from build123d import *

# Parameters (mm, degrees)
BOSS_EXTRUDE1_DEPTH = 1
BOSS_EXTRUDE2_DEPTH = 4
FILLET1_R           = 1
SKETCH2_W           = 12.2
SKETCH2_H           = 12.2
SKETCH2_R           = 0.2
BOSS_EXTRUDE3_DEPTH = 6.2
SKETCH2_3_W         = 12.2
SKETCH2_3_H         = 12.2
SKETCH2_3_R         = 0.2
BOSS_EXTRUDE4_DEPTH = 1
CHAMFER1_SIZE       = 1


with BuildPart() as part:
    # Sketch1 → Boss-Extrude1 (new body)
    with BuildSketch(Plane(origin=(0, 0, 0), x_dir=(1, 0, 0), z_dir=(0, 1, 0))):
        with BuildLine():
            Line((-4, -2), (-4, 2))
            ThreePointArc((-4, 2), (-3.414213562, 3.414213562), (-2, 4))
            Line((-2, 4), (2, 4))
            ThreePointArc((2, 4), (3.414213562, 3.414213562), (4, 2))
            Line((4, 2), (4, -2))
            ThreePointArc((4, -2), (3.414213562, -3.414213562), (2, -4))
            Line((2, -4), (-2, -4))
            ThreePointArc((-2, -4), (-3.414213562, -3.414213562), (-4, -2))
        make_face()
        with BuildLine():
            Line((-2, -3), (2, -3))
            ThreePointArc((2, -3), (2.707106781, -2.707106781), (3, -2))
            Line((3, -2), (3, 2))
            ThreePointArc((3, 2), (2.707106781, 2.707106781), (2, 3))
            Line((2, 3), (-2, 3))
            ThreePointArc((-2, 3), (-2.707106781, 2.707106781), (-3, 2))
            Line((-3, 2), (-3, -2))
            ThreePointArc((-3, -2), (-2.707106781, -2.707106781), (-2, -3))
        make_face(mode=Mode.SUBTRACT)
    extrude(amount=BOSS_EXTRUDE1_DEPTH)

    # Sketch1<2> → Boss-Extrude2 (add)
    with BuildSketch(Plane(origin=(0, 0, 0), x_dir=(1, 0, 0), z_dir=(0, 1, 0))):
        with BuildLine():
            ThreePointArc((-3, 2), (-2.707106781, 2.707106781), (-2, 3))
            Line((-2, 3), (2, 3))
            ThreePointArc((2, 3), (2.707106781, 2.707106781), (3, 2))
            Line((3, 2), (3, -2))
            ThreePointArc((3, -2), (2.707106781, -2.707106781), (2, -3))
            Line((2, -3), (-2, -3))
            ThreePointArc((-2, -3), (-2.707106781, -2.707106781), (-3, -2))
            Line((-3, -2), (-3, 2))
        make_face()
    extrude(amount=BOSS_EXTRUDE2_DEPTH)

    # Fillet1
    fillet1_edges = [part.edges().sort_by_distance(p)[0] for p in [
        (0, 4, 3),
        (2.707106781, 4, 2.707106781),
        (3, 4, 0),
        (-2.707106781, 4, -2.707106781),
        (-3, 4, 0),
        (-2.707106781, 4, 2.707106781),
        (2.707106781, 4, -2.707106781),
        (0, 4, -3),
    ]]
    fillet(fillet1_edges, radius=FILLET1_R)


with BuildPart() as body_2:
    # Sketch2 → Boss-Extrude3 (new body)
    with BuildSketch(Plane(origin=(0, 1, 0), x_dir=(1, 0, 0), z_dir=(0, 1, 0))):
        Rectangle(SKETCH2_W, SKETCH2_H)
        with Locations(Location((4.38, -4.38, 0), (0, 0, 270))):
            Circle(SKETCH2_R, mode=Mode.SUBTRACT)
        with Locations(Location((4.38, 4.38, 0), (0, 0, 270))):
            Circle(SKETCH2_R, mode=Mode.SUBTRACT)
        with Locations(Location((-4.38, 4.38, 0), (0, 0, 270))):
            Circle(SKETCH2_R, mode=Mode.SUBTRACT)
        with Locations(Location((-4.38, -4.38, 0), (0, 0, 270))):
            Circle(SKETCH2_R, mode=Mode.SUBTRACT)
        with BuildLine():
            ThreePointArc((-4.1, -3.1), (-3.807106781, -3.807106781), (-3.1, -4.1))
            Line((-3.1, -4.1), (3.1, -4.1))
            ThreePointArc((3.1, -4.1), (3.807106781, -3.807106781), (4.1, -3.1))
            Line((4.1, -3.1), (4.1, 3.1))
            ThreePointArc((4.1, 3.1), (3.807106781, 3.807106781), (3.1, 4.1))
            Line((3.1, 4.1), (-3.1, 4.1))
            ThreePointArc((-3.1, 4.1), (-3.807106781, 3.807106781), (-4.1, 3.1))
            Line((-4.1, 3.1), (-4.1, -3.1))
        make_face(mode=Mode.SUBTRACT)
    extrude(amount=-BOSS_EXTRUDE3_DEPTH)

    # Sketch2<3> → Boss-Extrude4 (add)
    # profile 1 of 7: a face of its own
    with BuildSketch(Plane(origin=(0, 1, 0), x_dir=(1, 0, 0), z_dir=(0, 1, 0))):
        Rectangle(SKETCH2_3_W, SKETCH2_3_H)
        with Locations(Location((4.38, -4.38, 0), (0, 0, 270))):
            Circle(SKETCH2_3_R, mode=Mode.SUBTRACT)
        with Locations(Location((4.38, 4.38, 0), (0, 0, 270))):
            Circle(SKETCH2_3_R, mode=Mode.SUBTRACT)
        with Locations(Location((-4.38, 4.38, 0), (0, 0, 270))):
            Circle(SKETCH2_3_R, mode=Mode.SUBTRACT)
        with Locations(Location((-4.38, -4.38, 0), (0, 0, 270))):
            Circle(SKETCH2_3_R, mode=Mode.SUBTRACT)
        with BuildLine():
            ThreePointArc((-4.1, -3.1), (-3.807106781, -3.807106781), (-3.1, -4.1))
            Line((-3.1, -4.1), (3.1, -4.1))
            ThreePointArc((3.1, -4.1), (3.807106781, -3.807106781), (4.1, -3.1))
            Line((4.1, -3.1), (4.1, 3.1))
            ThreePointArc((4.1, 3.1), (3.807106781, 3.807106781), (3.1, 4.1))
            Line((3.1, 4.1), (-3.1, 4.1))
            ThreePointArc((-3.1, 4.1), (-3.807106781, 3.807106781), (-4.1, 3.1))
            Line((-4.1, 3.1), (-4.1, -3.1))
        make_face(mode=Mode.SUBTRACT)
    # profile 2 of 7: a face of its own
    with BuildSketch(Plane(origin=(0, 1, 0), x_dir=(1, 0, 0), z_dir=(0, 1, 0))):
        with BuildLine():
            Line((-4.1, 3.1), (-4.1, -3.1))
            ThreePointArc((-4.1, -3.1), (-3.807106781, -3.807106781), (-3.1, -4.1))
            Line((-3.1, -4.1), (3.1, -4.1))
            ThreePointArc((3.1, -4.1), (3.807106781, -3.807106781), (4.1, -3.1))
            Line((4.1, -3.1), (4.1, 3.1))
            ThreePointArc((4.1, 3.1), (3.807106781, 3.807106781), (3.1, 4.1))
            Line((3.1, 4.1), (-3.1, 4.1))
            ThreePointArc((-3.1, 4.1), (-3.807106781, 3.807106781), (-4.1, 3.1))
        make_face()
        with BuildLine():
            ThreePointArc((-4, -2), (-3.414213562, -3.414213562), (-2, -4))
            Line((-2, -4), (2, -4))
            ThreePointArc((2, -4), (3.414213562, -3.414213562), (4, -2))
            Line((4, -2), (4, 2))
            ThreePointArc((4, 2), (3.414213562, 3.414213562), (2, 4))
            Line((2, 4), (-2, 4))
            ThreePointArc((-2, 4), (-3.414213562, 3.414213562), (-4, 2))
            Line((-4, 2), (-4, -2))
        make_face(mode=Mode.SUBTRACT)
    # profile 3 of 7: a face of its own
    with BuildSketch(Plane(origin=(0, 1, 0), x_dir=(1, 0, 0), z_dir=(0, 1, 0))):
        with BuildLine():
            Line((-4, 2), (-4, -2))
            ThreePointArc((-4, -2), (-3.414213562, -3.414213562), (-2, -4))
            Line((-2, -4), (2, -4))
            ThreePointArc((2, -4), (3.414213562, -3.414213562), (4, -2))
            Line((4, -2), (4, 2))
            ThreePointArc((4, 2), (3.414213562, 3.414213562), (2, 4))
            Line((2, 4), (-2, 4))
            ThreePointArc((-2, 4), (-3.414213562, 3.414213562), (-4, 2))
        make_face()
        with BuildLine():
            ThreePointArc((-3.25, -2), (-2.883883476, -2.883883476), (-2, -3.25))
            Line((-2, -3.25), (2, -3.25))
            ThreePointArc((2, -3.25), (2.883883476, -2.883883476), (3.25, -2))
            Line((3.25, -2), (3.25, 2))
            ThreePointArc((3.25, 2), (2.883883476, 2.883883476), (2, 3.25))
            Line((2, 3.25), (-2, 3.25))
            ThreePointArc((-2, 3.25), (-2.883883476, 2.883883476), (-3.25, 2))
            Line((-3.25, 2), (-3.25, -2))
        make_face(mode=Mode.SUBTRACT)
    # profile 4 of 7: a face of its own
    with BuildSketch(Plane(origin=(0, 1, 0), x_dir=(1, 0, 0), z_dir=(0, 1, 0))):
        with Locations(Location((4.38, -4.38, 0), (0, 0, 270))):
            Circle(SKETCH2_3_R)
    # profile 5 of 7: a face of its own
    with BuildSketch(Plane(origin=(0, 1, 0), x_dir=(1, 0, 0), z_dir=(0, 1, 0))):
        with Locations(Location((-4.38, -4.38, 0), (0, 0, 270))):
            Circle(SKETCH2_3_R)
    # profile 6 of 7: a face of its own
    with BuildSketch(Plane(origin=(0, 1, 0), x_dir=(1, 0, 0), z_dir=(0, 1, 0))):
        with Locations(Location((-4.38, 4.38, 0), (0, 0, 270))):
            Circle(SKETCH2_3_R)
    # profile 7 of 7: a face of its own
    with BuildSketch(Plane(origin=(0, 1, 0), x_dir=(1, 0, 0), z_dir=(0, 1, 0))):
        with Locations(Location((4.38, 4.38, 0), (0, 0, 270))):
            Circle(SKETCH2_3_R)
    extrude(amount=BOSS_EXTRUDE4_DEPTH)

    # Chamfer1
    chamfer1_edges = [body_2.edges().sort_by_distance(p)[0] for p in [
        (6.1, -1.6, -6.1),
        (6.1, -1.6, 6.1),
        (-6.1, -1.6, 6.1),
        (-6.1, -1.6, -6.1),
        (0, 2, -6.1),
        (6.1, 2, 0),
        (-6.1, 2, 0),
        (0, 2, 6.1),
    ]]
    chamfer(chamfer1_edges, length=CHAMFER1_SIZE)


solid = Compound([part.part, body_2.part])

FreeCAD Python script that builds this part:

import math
import FreeCAD as App
import Part
import Sketcher
from FreeCAD import Vector


def edges_at(feature, points):
    """Names of the edges that pass closest to the given points."""
    edges = feature.Shape.Edges
    near = lambda p: min(range(len(edges)), key=lambda i: edges[i].distToShape(Part.Vertex(*p))[0])
    return sorted({f"Edge{near(p) + 1}" for p in points})


def add_polygon(sketch, points):
    """Adds a closed chain of lines whose ends are joined by coincident constraints."""
    first, n = sketch.GeometryCount, len(points)
    for a, b in zip(points, points[1:] + points[:1]):
        sketch.addGeometry(Part.LineSegment(App.Vector(*a, 0), App.Vector(*b, 0)), False)
    for i in range(n):
        sketch.addConstraint(Sketcher.Constraint("Coincident", first + i, 2, first + (i + 1) % n, 1))

doc = App.newDocument("Part")
params = doc.addObject("Spreadsheet::Sheet", "Params")
for row, (alias, value) in enumerate([
    ("sketch1_radius", "2 mm"),
    ("sketch1_radius2", "1 mm"),
    ("sketch1_width", "4 mm"),
    ("pad1_length", "1 mm"),
    ("sketch2_radius", "1 mm"),
    ("sketch2_width", "4 mm"),
    ("pad2_length", "4 mm"),
    ("fillet_radius", "1 mm"),
    ("sketch3_radius", "1 mm"),
    ("sketch3_diameter", "0.4 mm"),
    ("sketch3_width", "12.2 mm"),
    ("sketch3_width2", "6.2 mm"),
    ("pad3_length", "6.2 mm"),
    ("sketch4_width", "4 mm"),
    ("sketch4_radius", "1.25 mm"),
    ("sketch4_width2", "12.2 mm"),
    ("pad4_length", "1 mm"),
    ("chamfer_size", "1 mm"),
], start=1):
    params.set(f"A{row}", alias)
    params.set(f"B{row}", "=" + value)
    params.setAlias(f"B{row}", alias)

body = doc.addObject("PartDesign::Body", "Body")

sketch1 = doc.addObject("Sketcher::SketchObject", "Sketch")
body.addObject(sketch1)
sketch1.AttachmentSupport = (doc.XZ_Plane, [""])
sketch1.MapMode = "FlatFace"
sketch1.addGeometry([
    Part.LineSegment(Vector(-4, -2, 0), Vector(-4, 2, 0)),
    Part.ArcOfCircle(Part.Circle(Vector(-2, 2, 0), Vector(0, 0, 1), 2), math.radians(90), math.radians(180)),
    Part.LineSegment(Vector(-2, 4, 0), Vector(2, 4, 0)),
    Part.ArcOfCircle(Part.Circle(Vector(2, 2, 0), Vector(0, 0, 1), 2), math.radians(0), math.radians(90)),
    Part.LineSegment(Vector(4, 2, 0), Vector(4, -2, 0)),
    Part.ArcOfCircle(Part.Circle(Vector(2, -2, 0), Vector(0, 0, 1), 2), math.radians(-90), math.radians(0)),
    Part.LineSegment(Vector(2, -4, 0), Vector(-2, -4, 0)),
    Part.ArcOfCircle(Part.Circle(Vector(-2, -2, 0), Vector(0, 0, 1), 2), math.radians(-180), math.radians(-90)),
    Part.ArcOfCircle(Part.Circle(Vector(-2, 2, 0), Vector(0, 0, 1), 1), math.radians(90), math.radians(180)),
    Part.LineSegment(Vector(-3, 2, 0), Vector(-3, -2, 0)),
    Part.ArcOfCircle(Part.Circle(Vector(-2, -2, 0), Vector(0, 0, 1), 1), math.radians(-180), math.radians(-90)),
    Part.LineSegment(Vector(-2, -3, 0), Vector(2, -3, 0)),
    Part.ArcOfCircle(Part.Circle(Vector(2, -2, 0), Vector(0, 0, 1), 1), math.radians(-90), math.radians(0)),
    Part.LineSegment(Vector(3, -2, 0), Vector(3, 2, 0)),
    Part.ArcOfCircle(Part.Circle(Vector(2, 2, 0), Vector(0, 0, 1), 1), math.radians(0), math.radians(90)),
    Part.LineSegment(Vector(2, 3, 0), Vector(-2, 3, 0)),
], False)
sketch1.addConstraint([
    Sketcher.Constraint("Tangent", 0, 2, 1, 2),
    Sketcher.Constraint("Tangent", 1, 1, 2, 1),
    Sketcher.Constraint("Tangent", 2, 2, 3, 2),
    Sketcher.Constraint("Tangent", 3, 1, 4, 1),
    Sketcher.Constraint("Tangent", 4, 2, 5, 2),
    Sketcher.Constraint("Tangent", 5, 1, 6, 1),
    Sketcher.Constraint("Tangent", 6, 2, 7, 2),
    Sketcher.Constraint("Tangent", 7, 1, 0, 1),
    Sketcher.Constraint("Tangent", 8, 2, 9, 1),
    Sketcher.Constraint("Tangent", 9, 2, 10, 1),
    Sketcher.Constraint("Tangent", 10, 2, 11, 1),
    Sketcher.Constraint("Tangent", 11, 2, 12, 1),
    Sketcher.Constraint("Tangent", 12, 2, 13, 1),
    Sketcher.Constraint("Tangent", 13, 2, 14, 1),
    Sketcher.Constraint("Tangent", 14, 2, 15, 1),
    Sketcher.Constraint("Tangent", 15, 2, 8, 1),
    Sketcher.Constraint("Vertical", 0),
    Sketcher.Constraint("Horizontal", 2),
    Sketcher.Constraint("Vertical", 4),
    Sketcher.Constraint("Horizontal", 6),
    Sketcher.Constraint("Vertical", 9),
    Sketcher.Constraint("Horizontal", 11),
    Sketcher.Constraint("Vertical", 13),
    Sketcher.Constraint("Horizontal", 15),
    Sketcher.Constraint("Coincident", 8, 3, 1, 3),
    Sketcher.Constraint("Coincident", 10, 3, 7, 3),
    Sketcher.Constraint("Coincident", 12, 3, 5, 3),
    Sketcher.Constraint("Equal", 1, 3),
    Sketcher.Constraint("Equal", 3, 5),
    Sketcher.Constraint("Equal", 5, 7),
    Sketcher.Constraint("Equal", 12, 14),
    Sketcher.Constraint("Symmetric", 1, 3, 5, 3, -1, 1),
    Sketcher.Constraint("Equal", 15, 0),
    Sketcher.Constraint("Radius", 1, 2.0),
    Sketcher.Constraint("Radius", 8, 1.0),
    Sketcher.Constraint("DistanceX", 2, 1, 2, 2, 4.0),
])
sketch1.setExpression("Constraints[33]", "Params.sketch1_radius")
sketch1.setExpression("Constraints[34]", "Params.sketch1_radius2")
sketch1.setExpression("Constraints[35]", "Params.sketch1_width")
pad1 = doc.addObject("PartDesign::Pad", "Pad")
body.addObject(pad1)
pad1.Profile = sketch1
pad1.setExpression("Length", "Params.pad1_length")
pad1.Reversed = True

sketch2 = doc.addObject("Sketcher::SketchObject", "Sketch001")
body.addObject(sketch2)
sketch2.AttachmentSupport = (doc.XZ_Plane, [""])
sketch2.MapMode = "FlatFace"
sketch2.addGeometry([
    Part.ArcOfCircle(Part.Circle(Vector(-2, -2, 0), Vector(0, 0, 1), 1), math.radians(-180), math.radians(-90)),
    Part.LineSegment(Vector(-3, -2, 0), Vector(-3, 2, 0)),
    Part.ArcOfCircle(Part.Circle(Vector(-2, 2, 0), Vector(0, 0, 1), 1), math.radians(90), math.radians(180)),
    Part.LineSegment(Vector(-2, 3, 0), Vector(2, 3, 0)),
    Part.ArcOfCircle(Part.Circle(Vector(2, 2, 0), Vector(0, 0, 1), 1), math.radians(0), math.radians(90)),
    Part.LineSegment(Vector(3, 2, 0), Vector(3, -2, 0)),
    Part.ArcOfCircle(Part.Circle(Vector(2, -2, 0), Vector(0, 0, 1), 1), math.radians(-90), math.radians(0)),
    Part.LineSegment(Vector(2, -3, 0), Vector(-2, -3, 0)),
], False)
sketch2.addConstraint([
    Sketcher.Constraint("Tangent", 0, 1, 1, 1),
    Sketcher.Constraint("Tangent", 1, 2, 2, 2),
    Sketcher.Constraint("Tangent", 2, 1, 3, 1),
    Sketcher.Constraint("Tangent", 3, 2, 4, 2),
    Sketcher.Constraint("Tangent", 4, 1, 5, 1),
    Sketcher.Constraint("Tangent", 5, 2, 6, 2),
    Sketcher.Constraint("Tangent", 6, 1, 7, 1),
    Sketcher.Constraint("Tangent", 7, 2, 0, 2),
    Sketcher.Constraint("Vertical", 1),
    Sketcher.Constraint("Horizontal", 3),
    Sketcher.Constraint("Vertical", 5),
    Sketcher.Constraint("Horizontal", 7),
    Sketcher.Constraint("Equal", 0, 2),
    Sketcher.Constraint("Equal", 2, 4),
    Sketcher.Constraint("Equal", 4, 6),
    Sketcher.Constraint("Symmetric", 0, 3, 4, 3, -1, 1),
    Sketcher.Constraint("Equal", 7, 1),
    Sketcher.Constraint("Radius", 0, 1.0),
    Sketcher.Constraint("DistanceX", 3, 1, 3, 2, 4.0),
])
sketch2.setExpression("Constraints[17]", "Params.sketch2_radius")
sketch2.setExpression("Constraints[18]", "Params.sketch2_width")
pad2 = doc.addObject("PartDesign::Pad", "Pad001")
body.addObject(pad2)
pad2.Profile = sketch2
pad2.setExpression("Length", "Params.pad2_length")
pad2.Reversed = True
doc.recompute()

fillet = doc.addObject("PartDesign::Fillet", "Fillet")
body.addObject(fillet)
fillet.Base = (pad2, edges_at(pad2, [
    (0, 4, 3),
    (2.707, 4, 2.707),
    (3, 4, 0),
    (-2.707, 4, -2.707),
    (-3, 4, 0),
    (-2.707, 4, 2.707),
    (2.707, 4, -2.707),
    (0, 4, -3),
]))
fillet.setExpression("Radius", "Params.fillet_radius")
body2 = doc.addObject("PartDesign::Body", "Body001")

sketch3 = doc.addObject("Sketcher::SketchObject", "Sketch002")
body2.addObject(sketch3)
sketch3.AttachmentSupport = (doc.getObject("XZ_Plane001"), [""])
sketch3.MapMode = "FlatFace"
sketch3.AttachmentOffset = App.Placement(Vector(0, 0, -1), App.Rotation())
add_polygon(sketch3, [(-6.1, -6.1), (-6.1, 6.1), (6.1, 6.1), (6.1, -6.1)])
sketch3.addGeometry(Part.Circle(Vector(-4.38, 4.38, 0), Vector(0, 0, 1), 0.2), False)
sketch3.addGeometry(Part.Circle(Vector(4.38, 4.38, 0), Vector(0, 0, 1), 0.2), False)
sketch3.addGeometry(Part.Circle(Vector(-4.38, -4.38, 0), Vector(0, 0, 1), 0.2), False)
sketch3.addGeometry(Part.ArcOfCircle(Part.Circle(Vector(-3.1, 3.1, 0), Vector(0, 0, 1), 1), math.radians(90), math.radians(180)), False)
sketch3.addGeometry(Part.LineSegment(Vector(-4.1, 3.1, 0), Vector(-4.1, -3.1, 0)), False)
sketch3.addGeometry(Part.ArcOfCircle(Part.Circle(Vector(-3.1, -3.1, 0), Vector(0, 0, 1), 1), math.radians(-180), math.radians(-90)), False)
sketch3.addGeometry(Part.LineSegment(Vector(-3.1, -4.1, 0), Vector(3.1, -4.1, 0)), False)
sketch3.addGeometry(Part.ArcOfCircle(Part.Circle(Vector(3.1, -3.1, 0), Vector(0, 0, 1), 1), math.radians(-90), math.radians(0)), False)
sketch3.addGeometry(Part.LineSegment(Vector(4.1, -3.1, 0), Vector(4.1, 3.1, 0)), False)
sketch3.addGeometry(Part.ArcOfCircle(Part.Circle(Vector(3.1, 3.1, 0), Vector(0, 0, 1), 1), math.radians(0), math.radians(90)), False)
sketch3.addGeometry(Part.LineSegment(Vector(3.1, 4.1, 0), Vector(-3.1, 4.1, 0)), False)
sketch3.addGeometry(Part.Circle(Vector(4.38, -4.38, 0), Vector(0, 0, 1), 0.2), False)
sketch3.addConstraint([
    Sketcher.Constraint("Tangent", 7, 2, 8, 1),
    Sketcher.Constraint("Tangent", 8, 2, 9, 1),
    Sketcher.Constraint("Tangent", 9, 2, 10, 1),
    Sketcher.Constraint("Tangent", 10, 2, 11, 1),
    Sketcher.Constraint("Tangent", 11, 2, 12, 1),
    Sketcher.Constraint("Tangent", 12, 2, 13, 1),
    Sketcher.Constraint("Tangent", 13, 2, 14, 1),
    Sketcher.Constraint("Tangent", 14, 2, 7, 1),
    Sketcher.Constraint("Vertical", 0),
    Sketcher.Constraint("Horizontal", 1),
    Sketcher.Constraint("Vertical", 2),
    Sketcher.Constraint("Horizontal", 3),
    Sketcher.Constraint("Vertical", 8),
    Sketcher.Constraint("Horizontal", 10),
    Sketcher.Constraint("Vertical", 12),
    Sketcher.Constraint("Horizontal", 14),
    Sketcher.Constraint("Equal", 4, 5),
    Sketcher.Constraint("Equal", 5, 6),
    Sketcher.Constraint("Equal", 7, 9),
    Sketcher.Constraint("Equal", 9, 11),
    Sketcher.Constraint("Equal", 11, 13),
    Sketcher.Constraint("Equal", 6, 15),
    Sketcher.Constraint("Symmetric", 5, 3, 6, 3, -1, 1),
    Sketcher.Constraint("Symmetric", 7, 3, 11, 3, -1, 1),
    Sketcher.Constraint("Symmetric", 4, 3, 15, 3, -1, 1),
    Sketcher.Constraint("Symmetric", 0, 2, 2, 2, -1, 1),
    Sketcher.Constraint("Symmetric", 4, 3, 5, 3, -2),
    Sketcher.Constraint("Equal", 3, 0),
    Sketcher.Constraint("Equal", 14, 8),
    Sketcher.Constraint("Radius", 7, 1.0),
    Sketcher.Constraint("Diameter", 4, 0.4),
    Sketcher.Constraint("DistanceX", 1, 1, 1, 2, 12.2),
    Sketcher.Constraint("DistanceX", 10, 1, 10, 2, 6.2),
    Sketcher.Constraint("DistanceX", 4, 3, -1, 1, 4.38),
    Sketcher.Constraint("DistanceY", -1, 1, 4, 3, 4.38),
])
sketch3.setExpression("Constraints[33]", "Params.sketch3_radius")
sketch3.setExpression("Constraints[34]", "Params.sketch3_diameter")
sketch3.setExpression("Constraints[35]", "Params.sketch3_width")
sketch3.setExpression("Constraints[36]", "Params.sketch3_width2")
pad3 = doc.addObject("PartDesign::Pad", "Pad002")
body2.addObject(pad3)
pad3.Profile = sketch3
pad3.setExpression("Length", "Params.pad3_length")

sketch4 = doc.addObject("Sketcher::SketchObject", "Sketch003")
body2.addObject(sketch4)
sketch4.AttachmentSupport = (doc.getObject("XZ_Plane001"), [""])
sketch4.MapMode = "FlatFace"
sketch4.AttachmentOffset = App.Placement(Vector(0, 0, -1), App.Rotation())
add_polygon(sketch4, [(-6.1, -6.1), (-6.1, 6.1), (6.1, 6.1), (6.1, -6.1)])
sketch4.addGeometry(Part.LineSegment(Vector(-2, -3.2, 0), Vector(2, -3.2, 0)), False)
sketch4.addGeometry(Part.ArcOfCircle(Part.Circle(Vector(2, -2, 0), Vector(0, 0, 1), 1.3), math.radians(-90), math.radians(0)), False)
sketch4.addGeometry(Part.LineSegment(Vector(3.2, -2, 0), Vector(3.2, 2, 0)), False)
sketch4.addGeometry(Part.ArcOfCircle(Part.Circle(Vector(2, 2, 0), Vector(0, 0, 1), 1.3), math.radians(0), math.radians(90)), False)
sketch4.addGeometry(Part.LineSegment(Vector(2, 3.2, 0), Vector(-2, 3.2, 0)), False)
sketch4.addGeometry(Part.ArcOfCircle(Part.Circle(Vector(-2, 2, 0), Vector(0, 0, 1), 1.3), math.radians(90), math.radians(180)), False)
sketch4.addGeometry(Part.LineSegment(Vector(-3.2, 2, 0), Vector(-3.2, -2, 0)), False)
sketch4.addGeometry(Part.ArcOfCircle(Part.Circle(Vector(-2, -2, 0), Vector(0, 0, 1), 1.3), math.radians(-180), math.radians(-90)), False)
sketch4.addConstraint([
    Sketcher.Constraint("Tangent", 4, 2, 5, 1),
    Sketcher.Constraint("Tangent", 5, 2, 6, 1),
    Sketcher.Constraint("Tangent", 6, 2, 7, 1),
    Sketcher.Constraint("Tangent", 7, 2, 8, 1),
    Sketcher.Constraint("Tangent", 8, 2, 9, 1),
    Sketcher.Constraint("Tangent", 9, 2, 10, 1),
    Sketcher.Constraint("Tangent", 10, 2, 11, 1),
    Sketcher.Constraint("Tangent", 11, 2, 4, 1),
    Sketcher.Constraint("Vertical", 0),
    Sketcher.Constraint("Horizontal", 1),
    Sketcher.Constraint("Vertical", 2),
    Sketcher.Constraint("Horizontal", 3),
    Sketcher.Constraint("Horizontal", 4),
    Sketcher.Constraint("Vertical", 6),
    Sketcher.Constraint("Horizontal", 8),
    Sketcher.Constraint("Vertical", 10),
    Sketcher.Constraint("Equal", 5, 7),
    Sketcher.Constraint("Equal", 7, 9),
    Sketcher.Constraint("Equal", 9, 11),
    Sketcher.Constraint("Symmetric", 5, 3, 9, 3, -1, 1),
    Sketcher.Constraint("Symmetric", 0, 2, 2, 2, -1, 1),
    Sketcher.Constraint("Equal", 3, 0),
    Sketcher.Constraint("Equal", 8, 6),
    Sketcher.Constraint("DistanceX", 4, 1, 4, 2, 4.0),
    Sketcher.Constraint("Radius", 5, 1.25),
    Sketcher.Constraint("DistanceX", 1, 1, 1, 2, 12.2),
])
sketch4.setExpression("Constraints[27]", "Params.sketch4_width")
sketch4.setExpression("Constraints[28]", "Params.sketch4_radius")
sketch4.setExpression("Constraints[29]", "Params.sketch4_width2")
pad4 = doc.addObject("PartDesign::Pad", "Pad003")
body2.addObject(pad4)
pad4.Profile = sketch4
pad4.setExpression("Length", "Params.pad4_length")
pad4.Reversed = True
doc.recompute()

chamfer = doc.addObject("PartDesign::Chamfer", "Chamfer")
body2.addObject(chamfer)
chamfer.Base = (pad4, edges_at(pad4, [
    (6.1, -1.6, -6.1),
    (6.1, -1.6, 6.1),
    (-6.1, -1.6, 6.1),
    (-6.1, -1.6, -6.1),
    (0, 2, -6.1),
    (6.1, 2, 0),
    (-6.1, 2, 0),
    (0, 2, 6.1),
]))
chamfer.setExpression("Size", "Params.chamfer_size")

doc.recompute()
